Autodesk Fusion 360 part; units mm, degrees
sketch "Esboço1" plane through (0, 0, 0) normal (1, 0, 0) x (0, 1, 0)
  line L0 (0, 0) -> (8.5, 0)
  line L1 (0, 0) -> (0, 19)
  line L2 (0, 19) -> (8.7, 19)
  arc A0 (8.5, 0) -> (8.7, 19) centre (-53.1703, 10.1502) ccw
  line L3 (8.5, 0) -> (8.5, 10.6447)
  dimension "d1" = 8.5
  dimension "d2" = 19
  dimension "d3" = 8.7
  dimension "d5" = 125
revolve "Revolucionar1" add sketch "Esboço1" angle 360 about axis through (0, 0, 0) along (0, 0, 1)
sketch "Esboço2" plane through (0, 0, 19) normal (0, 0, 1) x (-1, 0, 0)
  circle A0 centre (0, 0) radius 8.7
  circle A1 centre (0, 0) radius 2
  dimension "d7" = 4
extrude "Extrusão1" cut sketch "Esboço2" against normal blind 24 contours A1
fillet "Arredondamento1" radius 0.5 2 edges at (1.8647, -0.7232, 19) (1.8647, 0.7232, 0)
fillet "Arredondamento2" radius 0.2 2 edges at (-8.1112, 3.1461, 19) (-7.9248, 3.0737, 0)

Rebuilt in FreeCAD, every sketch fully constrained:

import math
import FreeCAD as App
import Part
import Sketcher
from FreeCAD import Vector


def edges_at(feature, points):
    """Names of the edges that pass closest to the given points."""
    edges = feature.Shape.Edges
    near = lambda p: min(range(len(edges)), key=lambda i: edges[i].distToShape(Part.Vertex(*p))[0])
    return sorted({f"Edge{near(p) + 1}" for p in points})

doc = App.newDocument("Part")
body = doc.addObject("PartDesign::Body", "Body")

sketch1 = body.newObject("Sketcher::SketchObject", "Sketch")
sketch1.AttachmentSupport = (doc.getObject("YZ_Plane"), [""])
sketch1.MapMode = "FlatFace"
sketch1.addGeometry([
    Part.LineSegment(Vector(0, 19, 0), Vector(0, 0, 0)),
    Part.LineSegment(Vector(0, 0, 0), Vector(8, 0, 0)),
    Part.ArcOfCircle(Part.Circle(Vector(-53, 10, 0), Vector(0, 0, 1), 63), math.radians(-9.35), math.radians(8.14)),
    Part.LineSegment(Vector(9, 19, 0), Vector(0, 19, 0)),
], False)
sketch1.addConstraint([
    Sketcher.Constraint("Coincident", 0, 2, 1, 1),
    Sketcher.Constraint("Coincident", 1, 2, 2, 1),
    Sketcher.Constraint("Coincident", 2, 2, 3, 1),
    Sketcher.Constraint("Coincident", 3, 2, 0, 1),
    Sketcher.Constraint("Vertical", 0),
    Sketcher.Constraint("Horizontal", 1),
    Sketcher.Constraint("Horizontal", 3),
    Sketcher.Constraint("Coincident", 0, 2, -1, 1),
    Sketcher.Constraint("Radius", 2, 62.5),
    Sketcher.Constraint("DistanceY", 0, 2, 0, 1, 19.0),
    Sketcher.Constraint("DistanceX", 1, 1, 1, 2, 8.5),
    Sketcher.Constraint("DistanceX", 3, 2, 3, 1, 8.7),
])
revolution = body.newObject("PartDesign::Revolution", "Revolution")
revolution.Profile = sketch1
revolution.ReferenceAxis = (sketch1, ["V_Axis"])
revolution.Angle = 360

sketch2 = body.newObject("Sketcher::SketchObject", "Sketch001")
sketch2.AttachmentSupport = (doc.getObject("XY_Plane"), [""])
sketch2.MapMode = "FlatFace"
sketch2.AttachmentOffset = App.Placement(Vector(0, 0, 19), App.Rotation())
sketch2.addGeometry(Part.Circle(Vector(0, 0, 0), Vector(0, 0, 1), 2), False)
sketch2.addConstraint([
    Sketcher.Constraint("Coincident", 0, 3, -1, 1),
    Sketcher.Constraint("Diameter", 0, 4.0),
])
pocket1 = body.newObject("PartDesign::Pocket", "Pocket")
pocket1.Profile = sketch2
pocket1.Length = 24
doc.recompute()

fillet = body.newObject("PartDesign::Fillet", "Fillet")
fillet.Base = (pocket1, edges_at(pocket1, [(1.865, -0.723, 19), (1.865, 0.723, 0)]))
fillet.Radius = 0.5
doc.recompute()

fillet2 = body.newObject("PartDesign::Fillet", "Fillet001")
fillet2.Base = (fillet, edges_at(fillet, [(-8.111, 3.146, 19), (-7.925, 3.074, 0)]))
fillet2.Radius = 0.2

doc.recompute()
